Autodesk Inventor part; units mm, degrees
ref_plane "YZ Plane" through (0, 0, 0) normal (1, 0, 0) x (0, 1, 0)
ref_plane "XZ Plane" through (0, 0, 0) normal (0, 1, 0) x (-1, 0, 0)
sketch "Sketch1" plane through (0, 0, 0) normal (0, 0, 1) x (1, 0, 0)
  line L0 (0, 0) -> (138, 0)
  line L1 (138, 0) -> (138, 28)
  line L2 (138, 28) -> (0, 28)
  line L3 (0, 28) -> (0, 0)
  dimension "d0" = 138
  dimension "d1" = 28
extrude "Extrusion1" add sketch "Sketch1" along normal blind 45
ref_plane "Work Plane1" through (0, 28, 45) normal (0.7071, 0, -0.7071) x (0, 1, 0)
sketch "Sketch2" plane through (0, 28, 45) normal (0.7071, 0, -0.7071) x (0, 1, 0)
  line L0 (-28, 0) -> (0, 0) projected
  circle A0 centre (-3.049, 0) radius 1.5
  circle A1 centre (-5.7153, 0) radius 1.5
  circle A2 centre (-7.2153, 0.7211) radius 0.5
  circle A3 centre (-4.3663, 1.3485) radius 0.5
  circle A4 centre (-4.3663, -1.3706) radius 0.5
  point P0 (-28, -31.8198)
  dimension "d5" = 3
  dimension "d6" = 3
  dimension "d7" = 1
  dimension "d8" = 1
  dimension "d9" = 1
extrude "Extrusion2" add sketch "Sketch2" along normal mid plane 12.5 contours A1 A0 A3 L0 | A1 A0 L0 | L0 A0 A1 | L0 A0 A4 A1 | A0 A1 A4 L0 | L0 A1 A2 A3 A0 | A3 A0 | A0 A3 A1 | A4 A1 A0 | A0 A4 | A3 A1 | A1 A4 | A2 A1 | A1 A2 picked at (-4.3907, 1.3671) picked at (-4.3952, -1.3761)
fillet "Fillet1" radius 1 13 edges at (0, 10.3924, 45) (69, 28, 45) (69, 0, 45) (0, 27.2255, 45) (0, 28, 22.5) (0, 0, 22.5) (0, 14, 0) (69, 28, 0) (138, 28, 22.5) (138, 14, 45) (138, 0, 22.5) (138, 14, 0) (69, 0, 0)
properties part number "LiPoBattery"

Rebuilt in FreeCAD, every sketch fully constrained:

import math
import FreeCAD as App
import Part
import Sketcher
from FreeCAD import Vector


def edges_at(feature, points):
    """Names of the edges that pass closest to the given points."""
    edges = feature.Shape.Edges
    near = lambda p: min(range(len(edges)), key=lambda i: edges[i].distToShape(Part.Vertex(*p))[0])
    return sorted({f"Edge{near(p) + 1}" for p in points})

doc = App.newDocument("Part")
body = doc.addObject("PartDesign::Body", "Body")

sketch1 = body.newObject("Sketcher::SketchObject", "Sketch")
sketch1.AttachmentSupport = (doc.getObject("XY_Plane"), [""])
sketch1.MapMode = "FlatFace"
sketch1.addGeometry(Part.LineSegment(Vector(0, 28, 0), Vector(0, 0, 0)), False)
sketch1.addGeometry(Part.LineSegment(Vector(0, 0, 0), Vector(138, 0, 0)), False)
sketch1.addGeometry(Part.LineSegment(Vector(138, 0, 0), Vector(138, 28, 0)), False)
sketch1.addGeometry(Part.LineSegment(Vector(138, 28, 0), Vector(0, 28, 0)), False)
sketch1.addConstraint(Sketcher.Constraint("Coincident", 0, 2, 1, 1))
sketch1.addConstraint(Sketcher.Constraint("Coincident", 1, 2, 2, 1))
sketch1.addConstraint(Sketcher.Constraint("Coincident", 2, 2, 3, 1))
sketch1.addConstraint(Sketcher.Constraint("Coincident", 3, 2, 0, 1))
sketch1.addConstraint(Sketcher.Constraint("Vertical", 0))
sketch1.addConstraint(Sketcher.Constraint("Horizontal", 1))
sketch1.addConstraint(Sketcher.Constraint("Vertical", 2))
sketch1.addConstraint(Sketcher.Constraint("Horizontal", 3))
sketch1.addConstraint(Sketcher.Constraint("Coincident", 0, 2, -1, 1))
sketch1.addConstraint(Sketcher.Constraint("DistanceX", 1, 1, 1, 2, 138.0))
sketch1.addConstraint(Sketcher.Constraint("DistanceY", 0, 2, 0, 1, 28.0))
pad1 = body.newObject("PartDesign::Pad", "Pad")
pad1.Profile = sketch1
pad1.Length = 45

sketch2 = body.newObject("Sketcher::SketchObject", "Sketch001")
sketch2.Placement = App.Placement(Vector(0, 28, 45), App.Rotation(Vector(0, 1, 0), Vector(0.707106781, 0, 0.707106781), Vector(0.707106781, 0, -0.707106781), "ZXY"))
sketch2.addGeometry(Part.ArcOfCircle(Part.Circle(Vector(-4.37, 1.35, 0), Vector(0, 0, 1), 0.5), math.radians(-11), math.radians(194)), False)
sketch2.addGeometry(Part.ArcOfCircle(Part.Circle(Vector(-5.72, 0, 0), Vector(0, 0, 1), 1.5), math.radians(55), math.radians(137)), False)
sketch2.addGeometry(Part.ArcOfCircle(Part.Circle(Vector(-7.22, 0.72, 0), Vector(0, 0, 1), 0.5), math.radians(37), math.radians(272)), False)
sketch2.addGeometry(Part.ArcOfCircle(Part.Circle(Vector(-5.72, 0, 0), Vector(0, 0, 1), 1.5), math.radians(172), math.radians(306)), False)
sketch2.addGeometry(Part.ArcOfCircle(Part.Circle(Vector(-4.37, -1.37, 0), Vector(0, 0, 1), 0.5), math.radians(163), math.radians(374)), False)
sketch2.addGeometry(Part.ArcOfCircle(Part.Circle(Vector(-3.05, 0, 0), Vector(0, 0, 1), 1.5), math.radians(-124), math.radians(123)), False)
sketch2.addGeometry(Part.ArcOfCircle(Part.Circle(Vector(-3.05, 0, 0), Vector(0, 0, 1), 1.5), math.radians(145.21), math.radians(152.72)), False)
sketch2.addGeometry(Part.ArcOfCircle(Part.Circle(Vector(-5.72, 0, 0), Vector(0, 0, 1), 1.5), math.radians(27.28), math.radians(35.16)), False)
sketch2.addGeometry(Part.ArcOfCircle(Part.Circle(Vector(-4.37, 1.35, 0), Vector(0, 0, 1), 0.5), math.radians(-104), math.radians(-80)), False)
sketch2.addGeometry(Part.ArcOfCircle(Part.Circle(Vector(-3.05, 0, 0), Vector(0, 0, 1), 1.5), math.radians(-152.72), math.radians(-144.01)), False)
sketch2.addGeometry(Part.ArcOfCircle(Part.Circle(Vector(-4.37, -1.37, 0), Vector(0, 0, 1), 0.5), math.radians(78), math.radians(107)), False)
sketch2.addGeometry(Part.ArcOfCircle(Part.Circle(Vector(-5.72, 0, 0), Vector(0, 0, 1), 1.5), math.radians(-36.46), math.radians(-27.28)), False)
sketch2.addConstraint(Sketcher.Constraint("Coincident", 0, 2, 1, 1))
sketch2.addConstraint(Sketcher.Constraint("Coincident", 1, 2, 2, 1))
sketch2.addConstraint(Sketcher.Constraint("Coincident", 2, 2, 3, 1))
sketch2.addConstraint(Sketcher.Constraint("Coincident", 3, 2, 4, 1))
sketch2.addConstraint(Sketcher.Constraint("Coincident", 4, 2, 5, 1))
sketch2.addConstraint(Sketcher.Constraint("Coincident", 5, 2, 0, 1))
sketch2.addConstraint(Sketcher.Constraint("Coincident", 6, 2, 7, 1))
sketch2.addConstraint(Sketcher.Constraint("Coincident", 7, 2, 8, 1))
sketch2.addConstraint(Sketcher.Constraint("Coincident", 8, 2, 6, 1))
sketch2.addConstraint(Sketcher.Constraint("Coincident", 9, 2, 10, 1))
sketch2.addConstraint(Sketcher.Constraint("Coincident", 10, 2, 11, 1))
sketch2.addConstraint(Sketcher.Constraint("Coincident", 11, 2, 9, 1))
sketch2.addConstraint(Sketcher.Constraint("Coincident", 3, 3, 1, 3))
sketch2.addConstraint(Sketcher.Constraint("Coincident", 6, 3, 5, 3))
sketch2.addConstraint(Sketcher.Constraint("Coincident", 7, 3, 1, 3))
sketch2.addConstraint(Sketcher.Constraint("Coincident", 8, 3, 0, 3))
sketch2.addConstraint(Sketcher.Constraint("Coincident", 9, 3, 5, 3))
sketch2.addConstraint(Sketcher.Constraint("Coincident", 10, 3, 4, 3))
sketch2.addConstraint(Sketcher.Constraint("Coincident", 11, 3, 1, 3))
sketch2.addConstraint(Sketcher.Constraint("Equal", 0, 2))
sketch2.addConstraint(Sketcher.Constraint("Equal", 1, 3))
sketch2.addConstraint(Sketcher.Constraint("Equal", 2, 4))
sketch2.addConstraint(Sketcher.Constraint("Equal", 3, 5))
sketch2.addConstraint(Sketcher.Constraint("Equal", 5, 6))
sketch2.addConstraint(Sketcher.Constraint("Equal", 6, 7))
sketch2.addConstraint(Sketcher.Constraint("Equal", 4, 8))
sketch2.addConstraint(Sketcher.Constraint("Equal", 7, 9))
sketch2.addConstraint(Sketcher.Constraint("Equal", 8, 10))
sketch2.addConstraint(Sketcher.Constraint("Equal", 9, 11))
sketch2.addConstraint(Sketcher.Constraint("Symmetric", 6, 2, 11, 2, -1))
sketch2.addConstraint(Sketcher.Constraint("Vertical", 0, 3, 4, 3))
sketch2.addConstraint(Sketcher.Constraint("Radius", 0, 0.5))
sketch2.addConstraint(Sketcher.Constraint("Radius", 1, 1.5))
sketch2.addConstraint(Sketcher.Constraint("DistanceX", 2, 3, 1, 3, 1.5))
sketch2.addConstraint(Sketcher.Constraint("DistanceY", 10, 2, 9, 2, 0.01))
sketch2.addConstraint(Sketcher.Constraint("DistanceY", -1, 1, 2, 3, 0.721))
sketch2.addConstraint(Sketcher.Constraint("DistanceX", 5, 3, -1, 1, 3.049))
sketch2.addConstraint(Sketcher.Constraint("DistanceX", 0, 2, -1, 1, 4.851))
sketch2.addConstraint(Sketcher.Constraint("DistanceY", -1, 1, 0, 2, 1.226))
sketch2.addConstraint(Sketcher.Constraint("DistanceX", 7, 2, -1, 1, 4.489))
pad2 = body.newObject("PartDesign::Pad", "Pad001")
pad2.Profile = sketch2
pad2.Length = 12.5
pad2.Midplane = True
doc.recompute()

fillet = body.newObject("PartDesign::Fillet", "Fillet")
fillet.Base = (pad2, edges_at(pad2, [
    (0, 10.392, 45),
    (69, 28, 45),
    (69, 0, 45),
    (0, 27.226, 45),
    (0, 28, 22.5),
    (0, 0, 22.5),
    (0, 14, 0),
    (69, 28, 0),
    (138, 28, 22.5),
    (138, 14, 45),
    (138, 0, 22.5),
    (138, 14, 0),
    (69, 0, 0),
]))
fillet.Radius = 1

doc.recompute()
